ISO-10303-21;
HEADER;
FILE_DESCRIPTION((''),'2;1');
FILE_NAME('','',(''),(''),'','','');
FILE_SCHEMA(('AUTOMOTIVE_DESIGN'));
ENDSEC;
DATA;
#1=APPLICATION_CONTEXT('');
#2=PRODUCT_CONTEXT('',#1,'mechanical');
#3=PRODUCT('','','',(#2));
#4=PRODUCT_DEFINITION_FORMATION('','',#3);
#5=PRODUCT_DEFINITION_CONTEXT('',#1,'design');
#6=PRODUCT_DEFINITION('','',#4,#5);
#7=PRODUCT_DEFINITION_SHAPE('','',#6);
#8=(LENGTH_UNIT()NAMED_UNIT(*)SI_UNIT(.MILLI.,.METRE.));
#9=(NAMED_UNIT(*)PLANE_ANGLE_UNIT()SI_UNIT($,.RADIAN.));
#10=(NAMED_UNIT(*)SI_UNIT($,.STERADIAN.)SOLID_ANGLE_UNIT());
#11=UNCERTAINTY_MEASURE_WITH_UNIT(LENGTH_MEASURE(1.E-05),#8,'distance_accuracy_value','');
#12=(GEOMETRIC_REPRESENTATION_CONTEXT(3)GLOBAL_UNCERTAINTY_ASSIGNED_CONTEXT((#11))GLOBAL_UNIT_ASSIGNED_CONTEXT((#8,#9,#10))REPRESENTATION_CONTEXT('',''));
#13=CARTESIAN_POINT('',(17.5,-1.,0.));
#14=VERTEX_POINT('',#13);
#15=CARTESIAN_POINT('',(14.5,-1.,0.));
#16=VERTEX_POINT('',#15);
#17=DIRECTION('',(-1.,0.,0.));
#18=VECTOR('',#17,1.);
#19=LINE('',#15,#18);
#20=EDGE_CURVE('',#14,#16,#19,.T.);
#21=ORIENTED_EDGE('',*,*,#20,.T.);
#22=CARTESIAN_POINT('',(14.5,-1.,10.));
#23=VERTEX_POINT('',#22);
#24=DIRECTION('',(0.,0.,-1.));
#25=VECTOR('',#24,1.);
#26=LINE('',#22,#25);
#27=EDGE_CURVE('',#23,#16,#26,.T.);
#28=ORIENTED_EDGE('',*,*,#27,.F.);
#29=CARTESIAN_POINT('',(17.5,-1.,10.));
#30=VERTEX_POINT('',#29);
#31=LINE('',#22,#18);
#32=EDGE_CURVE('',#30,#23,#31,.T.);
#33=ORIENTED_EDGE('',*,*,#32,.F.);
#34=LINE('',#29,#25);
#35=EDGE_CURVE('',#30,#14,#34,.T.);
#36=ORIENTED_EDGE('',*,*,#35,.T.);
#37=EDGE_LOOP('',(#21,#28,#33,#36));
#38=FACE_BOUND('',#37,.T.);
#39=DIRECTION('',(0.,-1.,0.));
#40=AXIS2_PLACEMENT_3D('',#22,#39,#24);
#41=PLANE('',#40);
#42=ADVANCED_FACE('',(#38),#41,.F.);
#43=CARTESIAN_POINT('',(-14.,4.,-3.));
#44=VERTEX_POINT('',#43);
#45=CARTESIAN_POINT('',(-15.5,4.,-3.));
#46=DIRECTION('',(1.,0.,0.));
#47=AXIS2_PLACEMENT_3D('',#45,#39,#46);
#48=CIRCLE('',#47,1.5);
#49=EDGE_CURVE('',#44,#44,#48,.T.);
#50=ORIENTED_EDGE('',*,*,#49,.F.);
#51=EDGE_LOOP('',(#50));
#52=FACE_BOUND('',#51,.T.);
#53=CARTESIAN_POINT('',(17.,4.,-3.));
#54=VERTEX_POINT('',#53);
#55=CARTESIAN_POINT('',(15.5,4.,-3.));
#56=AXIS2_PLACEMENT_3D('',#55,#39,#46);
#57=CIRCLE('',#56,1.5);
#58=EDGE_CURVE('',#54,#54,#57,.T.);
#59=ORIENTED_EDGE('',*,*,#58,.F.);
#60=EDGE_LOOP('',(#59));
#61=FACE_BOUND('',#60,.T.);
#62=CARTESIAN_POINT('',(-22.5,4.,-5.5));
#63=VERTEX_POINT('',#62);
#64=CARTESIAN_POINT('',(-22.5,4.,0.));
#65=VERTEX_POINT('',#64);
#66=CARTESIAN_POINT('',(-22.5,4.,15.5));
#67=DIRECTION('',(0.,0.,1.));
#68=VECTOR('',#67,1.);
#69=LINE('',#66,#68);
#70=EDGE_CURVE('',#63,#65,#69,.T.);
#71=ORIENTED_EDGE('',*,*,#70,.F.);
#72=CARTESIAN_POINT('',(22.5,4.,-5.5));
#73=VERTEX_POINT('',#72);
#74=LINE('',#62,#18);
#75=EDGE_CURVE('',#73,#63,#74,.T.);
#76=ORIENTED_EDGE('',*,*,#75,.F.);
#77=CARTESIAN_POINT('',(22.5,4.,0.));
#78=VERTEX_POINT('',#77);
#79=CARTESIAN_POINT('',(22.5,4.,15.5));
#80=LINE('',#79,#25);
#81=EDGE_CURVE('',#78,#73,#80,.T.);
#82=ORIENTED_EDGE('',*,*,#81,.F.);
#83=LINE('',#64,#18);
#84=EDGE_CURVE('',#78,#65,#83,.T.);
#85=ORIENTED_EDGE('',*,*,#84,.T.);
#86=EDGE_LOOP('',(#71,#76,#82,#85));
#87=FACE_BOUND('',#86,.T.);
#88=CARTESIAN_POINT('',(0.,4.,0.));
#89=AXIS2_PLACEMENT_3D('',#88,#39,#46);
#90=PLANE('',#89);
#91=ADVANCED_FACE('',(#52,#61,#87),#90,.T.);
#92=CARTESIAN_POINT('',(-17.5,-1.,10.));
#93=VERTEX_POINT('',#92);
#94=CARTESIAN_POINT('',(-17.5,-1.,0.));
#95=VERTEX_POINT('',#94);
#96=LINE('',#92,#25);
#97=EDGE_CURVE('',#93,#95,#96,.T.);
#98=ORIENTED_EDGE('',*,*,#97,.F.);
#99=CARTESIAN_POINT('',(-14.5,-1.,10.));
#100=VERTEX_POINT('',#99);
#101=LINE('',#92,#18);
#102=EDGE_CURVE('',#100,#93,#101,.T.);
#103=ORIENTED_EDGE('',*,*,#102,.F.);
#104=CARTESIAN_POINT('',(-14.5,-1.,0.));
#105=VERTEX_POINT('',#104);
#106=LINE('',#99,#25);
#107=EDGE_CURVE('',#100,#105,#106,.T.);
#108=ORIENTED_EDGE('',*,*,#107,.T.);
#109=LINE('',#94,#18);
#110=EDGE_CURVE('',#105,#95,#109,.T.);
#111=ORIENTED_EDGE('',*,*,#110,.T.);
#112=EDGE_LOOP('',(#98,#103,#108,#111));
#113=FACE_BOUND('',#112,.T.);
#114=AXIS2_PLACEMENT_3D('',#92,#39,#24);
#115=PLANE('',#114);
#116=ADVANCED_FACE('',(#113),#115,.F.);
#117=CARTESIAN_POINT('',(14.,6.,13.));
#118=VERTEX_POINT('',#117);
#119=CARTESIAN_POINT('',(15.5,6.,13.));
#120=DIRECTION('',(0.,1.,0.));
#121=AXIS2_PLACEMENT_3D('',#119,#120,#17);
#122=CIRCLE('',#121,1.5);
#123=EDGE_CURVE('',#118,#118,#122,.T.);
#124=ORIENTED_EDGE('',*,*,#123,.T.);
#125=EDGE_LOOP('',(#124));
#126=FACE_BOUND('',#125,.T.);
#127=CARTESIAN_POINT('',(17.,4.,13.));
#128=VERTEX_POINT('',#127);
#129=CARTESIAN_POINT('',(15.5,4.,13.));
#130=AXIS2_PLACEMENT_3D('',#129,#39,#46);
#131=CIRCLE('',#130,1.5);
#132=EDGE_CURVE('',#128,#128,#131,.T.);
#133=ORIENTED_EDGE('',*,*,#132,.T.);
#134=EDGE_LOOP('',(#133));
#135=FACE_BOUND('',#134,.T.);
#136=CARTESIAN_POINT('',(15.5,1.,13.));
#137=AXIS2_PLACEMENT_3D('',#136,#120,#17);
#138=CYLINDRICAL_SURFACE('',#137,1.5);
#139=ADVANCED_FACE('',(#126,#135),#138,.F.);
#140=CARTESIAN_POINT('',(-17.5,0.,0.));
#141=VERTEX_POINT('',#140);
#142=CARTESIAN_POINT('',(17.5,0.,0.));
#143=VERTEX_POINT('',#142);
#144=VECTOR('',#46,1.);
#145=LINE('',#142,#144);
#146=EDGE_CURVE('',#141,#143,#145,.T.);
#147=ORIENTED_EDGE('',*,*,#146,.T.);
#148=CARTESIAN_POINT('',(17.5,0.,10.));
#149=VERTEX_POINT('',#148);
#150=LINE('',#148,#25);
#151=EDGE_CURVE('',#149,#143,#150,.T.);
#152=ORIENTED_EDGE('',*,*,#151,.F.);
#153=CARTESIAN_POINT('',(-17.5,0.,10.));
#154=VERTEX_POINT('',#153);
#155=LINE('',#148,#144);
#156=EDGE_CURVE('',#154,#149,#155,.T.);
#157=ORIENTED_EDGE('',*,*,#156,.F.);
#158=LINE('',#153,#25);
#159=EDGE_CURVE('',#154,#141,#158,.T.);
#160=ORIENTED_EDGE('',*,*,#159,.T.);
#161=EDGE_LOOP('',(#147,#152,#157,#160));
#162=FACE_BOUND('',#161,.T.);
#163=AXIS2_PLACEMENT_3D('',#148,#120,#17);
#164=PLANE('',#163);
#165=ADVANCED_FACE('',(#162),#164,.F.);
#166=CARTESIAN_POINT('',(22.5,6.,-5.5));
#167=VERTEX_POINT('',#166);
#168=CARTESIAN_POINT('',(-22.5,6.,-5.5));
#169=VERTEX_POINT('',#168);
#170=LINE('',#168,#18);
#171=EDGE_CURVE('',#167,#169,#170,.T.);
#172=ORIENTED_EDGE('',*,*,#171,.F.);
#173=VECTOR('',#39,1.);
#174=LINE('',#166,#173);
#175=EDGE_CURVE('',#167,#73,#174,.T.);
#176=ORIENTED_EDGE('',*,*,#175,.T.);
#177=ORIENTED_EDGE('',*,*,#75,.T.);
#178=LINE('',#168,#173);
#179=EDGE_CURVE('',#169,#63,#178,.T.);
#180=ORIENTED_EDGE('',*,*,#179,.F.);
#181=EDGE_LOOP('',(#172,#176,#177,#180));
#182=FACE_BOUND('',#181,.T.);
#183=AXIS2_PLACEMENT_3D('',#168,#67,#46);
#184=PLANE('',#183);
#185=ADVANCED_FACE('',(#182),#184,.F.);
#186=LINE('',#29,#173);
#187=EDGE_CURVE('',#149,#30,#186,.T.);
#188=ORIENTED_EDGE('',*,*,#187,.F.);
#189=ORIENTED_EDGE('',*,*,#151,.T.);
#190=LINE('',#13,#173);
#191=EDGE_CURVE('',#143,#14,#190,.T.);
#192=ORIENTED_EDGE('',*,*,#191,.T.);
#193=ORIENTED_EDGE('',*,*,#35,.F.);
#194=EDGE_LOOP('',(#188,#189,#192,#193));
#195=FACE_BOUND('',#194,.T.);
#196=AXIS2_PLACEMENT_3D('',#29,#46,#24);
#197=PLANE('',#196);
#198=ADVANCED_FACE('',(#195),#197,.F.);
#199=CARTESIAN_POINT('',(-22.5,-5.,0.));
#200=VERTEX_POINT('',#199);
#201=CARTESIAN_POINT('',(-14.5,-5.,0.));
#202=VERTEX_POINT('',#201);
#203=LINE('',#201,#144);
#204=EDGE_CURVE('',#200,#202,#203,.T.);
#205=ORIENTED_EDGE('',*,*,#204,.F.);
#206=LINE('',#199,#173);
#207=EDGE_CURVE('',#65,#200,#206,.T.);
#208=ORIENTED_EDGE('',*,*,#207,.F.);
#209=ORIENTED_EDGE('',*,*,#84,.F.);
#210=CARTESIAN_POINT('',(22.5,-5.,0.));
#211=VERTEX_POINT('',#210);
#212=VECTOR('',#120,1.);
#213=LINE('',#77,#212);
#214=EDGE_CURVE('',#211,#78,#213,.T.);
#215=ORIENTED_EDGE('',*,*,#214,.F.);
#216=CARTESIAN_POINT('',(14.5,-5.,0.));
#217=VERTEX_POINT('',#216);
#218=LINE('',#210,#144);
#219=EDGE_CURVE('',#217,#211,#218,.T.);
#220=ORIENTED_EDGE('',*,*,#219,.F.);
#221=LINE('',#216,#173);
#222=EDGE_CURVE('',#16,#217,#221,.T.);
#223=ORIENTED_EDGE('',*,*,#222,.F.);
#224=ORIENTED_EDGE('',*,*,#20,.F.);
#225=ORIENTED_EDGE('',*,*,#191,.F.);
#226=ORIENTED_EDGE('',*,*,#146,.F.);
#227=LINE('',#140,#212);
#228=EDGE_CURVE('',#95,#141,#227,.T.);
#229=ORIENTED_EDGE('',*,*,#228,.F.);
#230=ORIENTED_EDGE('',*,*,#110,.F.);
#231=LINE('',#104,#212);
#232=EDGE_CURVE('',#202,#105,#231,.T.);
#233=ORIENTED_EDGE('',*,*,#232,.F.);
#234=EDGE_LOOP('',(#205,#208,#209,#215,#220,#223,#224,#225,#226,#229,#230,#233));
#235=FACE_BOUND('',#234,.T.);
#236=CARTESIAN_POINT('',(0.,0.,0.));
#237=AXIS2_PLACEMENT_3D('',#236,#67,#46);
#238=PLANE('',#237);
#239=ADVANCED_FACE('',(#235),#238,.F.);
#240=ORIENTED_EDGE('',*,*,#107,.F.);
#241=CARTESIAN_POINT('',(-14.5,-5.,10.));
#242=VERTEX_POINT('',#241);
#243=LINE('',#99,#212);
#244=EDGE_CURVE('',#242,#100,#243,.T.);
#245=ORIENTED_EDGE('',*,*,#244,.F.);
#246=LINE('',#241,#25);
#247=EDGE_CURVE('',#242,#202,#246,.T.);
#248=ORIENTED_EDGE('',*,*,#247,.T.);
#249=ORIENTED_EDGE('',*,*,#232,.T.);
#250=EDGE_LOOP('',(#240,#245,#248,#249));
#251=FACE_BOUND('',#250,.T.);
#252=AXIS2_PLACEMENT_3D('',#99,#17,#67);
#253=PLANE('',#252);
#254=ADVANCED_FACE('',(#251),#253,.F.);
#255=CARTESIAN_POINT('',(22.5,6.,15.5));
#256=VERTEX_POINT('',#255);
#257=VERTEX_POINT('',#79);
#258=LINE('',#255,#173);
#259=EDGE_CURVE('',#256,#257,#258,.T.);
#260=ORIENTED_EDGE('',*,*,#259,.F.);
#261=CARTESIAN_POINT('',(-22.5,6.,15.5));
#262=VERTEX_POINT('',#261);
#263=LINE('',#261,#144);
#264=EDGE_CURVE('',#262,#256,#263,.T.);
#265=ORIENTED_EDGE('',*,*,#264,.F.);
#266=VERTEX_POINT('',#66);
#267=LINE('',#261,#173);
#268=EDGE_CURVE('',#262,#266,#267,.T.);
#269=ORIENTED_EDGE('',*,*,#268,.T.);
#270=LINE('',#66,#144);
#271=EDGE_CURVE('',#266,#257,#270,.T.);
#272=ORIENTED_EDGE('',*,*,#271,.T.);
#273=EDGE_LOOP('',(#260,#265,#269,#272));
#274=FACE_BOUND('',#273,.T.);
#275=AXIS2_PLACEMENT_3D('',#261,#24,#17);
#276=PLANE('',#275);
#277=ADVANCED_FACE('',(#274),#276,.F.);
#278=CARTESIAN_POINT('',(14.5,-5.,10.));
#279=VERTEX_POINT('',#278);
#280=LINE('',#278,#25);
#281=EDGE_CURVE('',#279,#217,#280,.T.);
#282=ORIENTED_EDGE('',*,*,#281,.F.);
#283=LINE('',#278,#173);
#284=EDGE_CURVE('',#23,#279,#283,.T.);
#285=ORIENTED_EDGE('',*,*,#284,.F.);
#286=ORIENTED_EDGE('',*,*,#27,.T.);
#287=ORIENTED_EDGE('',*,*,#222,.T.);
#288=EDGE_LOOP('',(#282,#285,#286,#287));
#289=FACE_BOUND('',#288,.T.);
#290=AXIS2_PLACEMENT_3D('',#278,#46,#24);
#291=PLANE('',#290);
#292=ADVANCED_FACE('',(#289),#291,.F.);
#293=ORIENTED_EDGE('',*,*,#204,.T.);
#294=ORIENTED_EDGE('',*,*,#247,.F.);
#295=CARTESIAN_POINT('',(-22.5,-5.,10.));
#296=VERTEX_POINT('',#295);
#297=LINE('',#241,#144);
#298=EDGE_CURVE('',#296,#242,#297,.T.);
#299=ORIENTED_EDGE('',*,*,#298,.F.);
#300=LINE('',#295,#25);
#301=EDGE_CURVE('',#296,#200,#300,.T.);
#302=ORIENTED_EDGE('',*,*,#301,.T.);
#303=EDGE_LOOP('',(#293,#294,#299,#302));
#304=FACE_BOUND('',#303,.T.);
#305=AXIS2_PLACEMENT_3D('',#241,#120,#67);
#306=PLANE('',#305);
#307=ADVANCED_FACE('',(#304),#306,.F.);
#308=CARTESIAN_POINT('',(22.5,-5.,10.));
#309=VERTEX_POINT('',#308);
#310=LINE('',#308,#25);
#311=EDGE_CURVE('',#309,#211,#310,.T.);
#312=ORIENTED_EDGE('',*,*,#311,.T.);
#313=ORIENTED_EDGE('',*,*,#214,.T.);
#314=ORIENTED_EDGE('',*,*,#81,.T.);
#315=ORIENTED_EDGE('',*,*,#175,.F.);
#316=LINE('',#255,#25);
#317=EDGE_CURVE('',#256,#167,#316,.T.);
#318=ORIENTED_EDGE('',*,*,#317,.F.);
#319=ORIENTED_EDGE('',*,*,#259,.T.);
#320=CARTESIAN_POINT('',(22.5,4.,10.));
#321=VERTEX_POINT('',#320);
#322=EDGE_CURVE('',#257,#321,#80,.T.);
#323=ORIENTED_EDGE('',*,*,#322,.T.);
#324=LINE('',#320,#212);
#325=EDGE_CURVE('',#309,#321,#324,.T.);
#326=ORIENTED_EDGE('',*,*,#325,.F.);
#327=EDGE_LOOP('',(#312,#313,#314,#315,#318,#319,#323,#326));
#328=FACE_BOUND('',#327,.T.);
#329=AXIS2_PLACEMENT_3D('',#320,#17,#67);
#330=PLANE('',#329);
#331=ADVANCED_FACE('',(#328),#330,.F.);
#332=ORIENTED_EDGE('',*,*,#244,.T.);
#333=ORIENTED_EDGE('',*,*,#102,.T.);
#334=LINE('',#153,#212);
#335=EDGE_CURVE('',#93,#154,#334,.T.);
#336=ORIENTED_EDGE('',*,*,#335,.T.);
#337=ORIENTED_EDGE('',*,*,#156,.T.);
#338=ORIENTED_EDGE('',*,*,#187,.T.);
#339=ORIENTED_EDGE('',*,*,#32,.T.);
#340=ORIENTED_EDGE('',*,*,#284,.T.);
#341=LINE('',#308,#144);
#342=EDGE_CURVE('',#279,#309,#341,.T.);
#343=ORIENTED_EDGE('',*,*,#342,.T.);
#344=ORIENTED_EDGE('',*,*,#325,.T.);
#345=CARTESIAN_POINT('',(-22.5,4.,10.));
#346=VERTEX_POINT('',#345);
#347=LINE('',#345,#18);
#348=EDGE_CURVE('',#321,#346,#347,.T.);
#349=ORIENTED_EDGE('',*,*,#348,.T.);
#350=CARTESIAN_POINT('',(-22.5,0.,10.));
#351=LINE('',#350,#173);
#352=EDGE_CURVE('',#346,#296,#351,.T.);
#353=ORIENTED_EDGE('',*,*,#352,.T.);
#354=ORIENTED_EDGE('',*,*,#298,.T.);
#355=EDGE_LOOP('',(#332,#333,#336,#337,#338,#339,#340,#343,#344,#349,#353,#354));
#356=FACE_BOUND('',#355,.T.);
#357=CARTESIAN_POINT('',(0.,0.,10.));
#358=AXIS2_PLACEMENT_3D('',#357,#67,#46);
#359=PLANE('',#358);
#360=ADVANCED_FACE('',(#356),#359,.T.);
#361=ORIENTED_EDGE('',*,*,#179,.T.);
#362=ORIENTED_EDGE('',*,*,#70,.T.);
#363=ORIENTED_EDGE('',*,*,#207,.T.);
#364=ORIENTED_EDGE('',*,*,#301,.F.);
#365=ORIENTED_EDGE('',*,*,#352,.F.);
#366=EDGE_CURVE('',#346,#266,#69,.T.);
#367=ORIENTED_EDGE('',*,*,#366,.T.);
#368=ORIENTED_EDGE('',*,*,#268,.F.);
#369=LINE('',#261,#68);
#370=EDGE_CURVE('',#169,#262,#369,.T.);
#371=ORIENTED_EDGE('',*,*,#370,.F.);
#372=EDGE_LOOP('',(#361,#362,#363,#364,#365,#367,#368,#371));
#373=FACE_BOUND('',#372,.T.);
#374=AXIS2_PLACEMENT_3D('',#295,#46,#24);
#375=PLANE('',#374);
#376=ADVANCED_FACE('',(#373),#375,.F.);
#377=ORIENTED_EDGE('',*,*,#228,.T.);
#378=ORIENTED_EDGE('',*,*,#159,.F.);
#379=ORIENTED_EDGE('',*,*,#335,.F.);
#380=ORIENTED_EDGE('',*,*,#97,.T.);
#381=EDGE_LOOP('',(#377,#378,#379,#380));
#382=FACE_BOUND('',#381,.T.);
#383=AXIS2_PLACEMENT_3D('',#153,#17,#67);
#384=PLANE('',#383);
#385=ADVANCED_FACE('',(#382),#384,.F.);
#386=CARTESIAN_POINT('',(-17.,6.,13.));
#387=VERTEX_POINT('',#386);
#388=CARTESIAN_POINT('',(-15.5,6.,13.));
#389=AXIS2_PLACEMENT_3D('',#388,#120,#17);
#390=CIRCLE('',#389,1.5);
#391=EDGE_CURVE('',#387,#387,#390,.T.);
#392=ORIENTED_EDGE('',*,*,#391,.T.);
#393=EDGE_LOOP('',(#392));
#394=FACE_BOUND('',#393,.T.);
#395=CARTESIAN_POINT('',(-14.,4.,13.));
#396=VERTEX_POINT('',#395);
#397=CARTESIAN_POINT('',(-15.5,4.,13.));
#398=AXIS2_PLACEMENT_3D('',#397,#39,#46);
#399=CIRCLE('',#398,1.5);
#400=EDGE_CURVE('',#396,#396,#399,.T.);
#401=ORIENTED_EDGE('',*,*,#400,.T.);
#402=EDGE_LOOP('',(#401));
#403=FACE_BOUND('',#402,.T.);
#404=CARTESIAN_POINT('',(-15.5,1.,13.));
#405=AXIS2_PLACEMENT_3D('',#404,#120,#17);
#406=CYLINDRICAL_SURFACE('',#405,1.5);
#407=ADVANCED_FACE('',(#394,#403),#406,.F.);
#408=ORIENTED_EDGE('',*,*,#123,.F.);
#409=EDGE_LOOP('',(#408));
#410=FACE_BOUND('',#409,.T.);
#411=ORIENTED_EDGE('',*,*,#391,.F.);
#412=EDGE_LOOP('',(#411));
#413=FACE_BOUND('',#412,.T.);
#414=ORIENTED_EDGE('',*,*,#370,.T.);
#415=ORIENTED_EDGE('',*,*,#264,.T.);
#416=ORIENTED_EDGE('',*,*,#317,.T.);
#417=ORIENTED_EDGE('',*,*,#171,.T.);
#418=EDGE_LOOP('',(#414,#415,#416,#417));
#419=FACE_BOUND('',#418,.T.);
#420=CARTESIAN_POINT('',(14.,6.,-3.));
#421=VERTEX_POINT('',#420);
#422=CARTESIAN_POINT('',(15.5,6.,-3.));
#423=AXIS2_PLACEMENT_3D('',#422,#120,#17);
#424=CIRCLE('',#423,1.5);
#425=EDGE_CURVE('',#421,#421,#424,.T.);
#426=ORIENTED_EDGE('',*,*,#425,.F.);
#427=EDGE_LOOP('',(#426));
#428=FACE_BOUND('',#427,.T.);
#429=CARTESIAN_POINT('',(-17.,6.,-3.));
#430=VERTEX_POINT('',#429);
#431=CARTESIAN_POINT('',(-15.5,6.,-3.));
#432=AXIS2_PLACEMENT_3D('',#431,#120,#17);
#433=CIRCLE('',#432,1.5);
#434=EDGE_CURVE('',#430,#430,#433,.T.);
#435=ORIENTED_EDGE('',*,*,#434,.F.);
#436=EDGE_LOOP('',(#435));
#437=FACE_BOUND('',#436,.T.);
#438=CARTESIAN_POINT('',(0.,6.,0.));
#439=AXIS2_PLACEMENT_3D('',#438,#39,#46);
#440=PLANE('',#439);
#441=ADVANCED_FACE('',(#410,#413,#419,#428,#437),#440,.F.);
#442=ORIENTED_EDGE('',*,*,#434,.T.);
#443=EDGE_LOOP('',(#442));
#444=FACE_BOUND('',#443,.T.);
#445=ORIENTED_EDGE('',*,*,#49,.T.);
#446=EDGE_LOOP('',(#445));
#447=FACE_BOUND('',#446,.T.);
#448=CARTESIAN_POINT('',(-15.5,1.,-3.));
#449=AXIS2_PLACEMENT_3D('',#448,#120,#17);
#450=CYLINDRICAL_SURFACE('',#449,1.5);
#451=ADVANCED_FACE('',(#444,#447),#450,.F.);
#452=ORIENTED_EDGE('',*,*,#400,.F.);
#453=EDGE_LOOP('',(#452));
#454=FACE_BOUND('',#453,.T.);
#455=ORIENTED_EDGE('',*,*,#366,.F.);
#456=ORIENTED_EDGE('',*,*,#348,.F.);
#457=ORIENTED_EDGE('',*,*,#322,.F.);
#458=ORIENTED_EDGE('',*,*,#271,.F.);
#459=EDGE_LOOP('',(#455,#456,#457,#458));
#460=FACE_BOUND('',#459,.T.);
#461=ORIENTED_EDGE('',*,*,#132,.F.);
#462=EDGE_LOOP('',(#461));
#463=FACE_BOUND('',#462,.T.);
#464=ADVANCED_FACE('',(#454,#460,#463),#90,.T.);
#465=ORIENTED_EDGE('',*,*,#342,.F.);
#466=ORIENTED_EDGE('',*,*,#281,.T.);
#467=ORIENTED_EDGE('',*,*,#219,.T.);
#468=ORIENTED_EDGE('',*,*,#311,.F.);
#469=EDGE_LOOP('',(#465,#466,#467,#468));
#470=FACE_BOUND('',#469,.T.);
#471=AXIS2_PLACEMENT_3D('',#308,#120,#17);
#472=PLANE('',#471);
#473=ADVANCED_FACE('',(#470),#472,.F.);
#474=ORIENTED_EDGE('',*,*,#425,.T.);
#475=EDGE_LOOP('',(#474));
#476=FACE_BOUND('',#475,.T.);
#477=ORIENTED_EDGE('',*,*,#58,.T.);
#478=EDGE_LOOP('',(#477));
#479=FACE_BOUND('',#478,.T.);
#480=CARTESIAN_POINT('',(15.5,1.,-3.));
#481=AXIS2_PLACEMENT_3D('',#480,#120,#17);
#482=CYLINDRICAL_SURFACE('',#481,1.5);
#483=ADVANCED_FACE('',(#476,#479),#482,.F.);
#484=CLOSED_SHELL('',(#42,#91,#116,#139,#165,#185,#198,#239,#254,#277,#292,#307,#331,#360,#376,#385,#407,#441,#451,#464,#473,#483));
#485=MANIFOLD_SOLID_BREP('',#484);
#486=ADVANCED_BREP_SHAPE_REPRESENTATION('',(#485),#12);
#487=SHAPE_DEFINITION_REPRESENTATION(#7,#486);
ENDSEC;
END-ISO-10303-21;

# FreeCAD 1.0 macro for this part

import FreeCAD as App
import Part
import Sketcher
from FreeCAD import Vector


def add_polygon(sketch, points):
    """Adds a closed chain of lines whose ends are joined by coincident constraints."""
    first, n = sketch.GeometryCount, len(points)
    for a, b in zip(points, points[1:] + points[:1]):
        sketch.addGeometry(Part.LineSegment(App.Vector(*a, 0), App.Vector(*b, 0)), False)
    for i in range(n):
        sketch.addConstraint(Sketcher.Constraint("Coincident", first + i, 2, first + (i + 1) % n, 1))

doc = App.newDocument("Part")
body = doc.addObject("PartDesign::Body", "Body")

# Sketch on XY plane
sketch1 = body.newObject("Sketcher::SketchObject", "Sketch")
sketch1.AttachmentSupport = (doc.getObject("XY_Plane"), [""])
sketch1.MapMode = "FlatFace"
add_polygon(sketch1, [(-17.5, -1), (-17.5, 0), (17.5, 0), (17.5, -1), (14.5, -1), (14.5, -5), (22.5, -5), (22.5, 4), (-22.5, 4), (-22.5, -5), (-14.5, -5), (-14.5, -1)])  # lines 0-11
sketch1.addConstraint([
    Sketcher.Constraint("Vertical", 0),
    Sketcher.Constraint("Horizontal", 1),
    Sketcher.Constraint("Vertical", 2),
    Sketcher.Constraint("Horizontal", 3),
    Sketcher.Constraint("Vertical", 4),
    Sketcher.Constraint("Horizontal", 5),
    Sketcher.Constraint("Vertical", 6),
    Sketcher.Constraint("Horizontal", 7),
    Sketcher.Constraint("Vertical", 8),
    Sketcher.Constraint("Horizontal", 9),
    Sketcher.Constraint("Vertical", 10),
    Sketcher.Constraint("Horizontal", 11),
    Sketcher.Constraint("Symmetric", 0, 2, 1, 2, -1, 1),
    Sketcher.Constraint("Symmetric", 5, 2, 8, 2, -2),
    Sketcher.Constraint("Symmetric", 3, 2, 10, 2, -2),
    Sketcher.Constraint("DistanceX", 1, 1, 1, 2, 35.0),
    Sketcher.Constraint("DistanceX", 3, 2, 3, 1, 3.0),
    Sketcher.Constraint("DistanceX", 5, 1, 5, 2, 8.0),
    Sketcher.Constraint("DistanceY", 0, 1, 0, 2, 1.0),
    Sketcher.Constraint("DistanceY", 4, 2, 4, 1, 4.0),
    Sketcher.Constraint("DistanceY", 6, 1, 6, 2, 9.0),
])
pad1 = body.newObject("PartDesign::Pad", "Pad")
pad1.Profile = sketch1
pad1.Length = 10

# Sketch on XZ plane
sketch2 = body.newObject("Sketcher::SketchObject", "Sketch001")
sketch2.AttachmentSupport = (doc.getObject("XZ_Plane"), [""])
sketch2.MapMode = "FlatFace"
sketch2.AttachmentOffset = App.Placement(Vector(0, 0, -4), App.Rotation())
add_polygon(sketch2, [(-22.5, -5.5), (-22.5, 15.5), (22.5, 15.5), (22.5, -5.5)])  # lines 0-3
sketch2.addConstraint([
    Sketcher.Constraint("Vertical", 0),
    Sketcher.Constraint("Horizontal", 1),
    Sketcher.Constraint("Vertical", 2),
    Sketcher.Constraint("Horizontal", 3),
    Sketcher.Constraint("DistanceX", 1, 1, 1, 2, 45.0),
    Sketcher.Constraint("DistanceY", 0, 1, 0, 2, 21.0),
    Sketcher.Constraint("DistanceX", 0, 2, -1, 1, 22.5),
    Sketcher.Constraint("DistanceY", -1, 1, 0, 2, 15.5),
])
pad2 = body.newObject("PartDesign::Pad", "Pad001")
pad2.Profile = sketch2
pad2.Length = 2
pad2.Reversed = True

# Sketch on XZ plane
sketch3 = body.newObject("Sketcher::SketchObject", "Sketch002")
sketch3.AttachmentSupport = (doc.getObject("XZ_Plane"), [""])
sketch3.MapMode = "FlatFace"
sketch3.AttachmentOffset = App.Placement(Vector(0, 0, -6), App.Rotation())
sketch3.addGeometry([
    Part.Circle(Vector(-15.5, 13, 0), Vector(0, 0, 1), 1.5),
    Part.Circle(Vector(-15.5, -3, 0), Vector(0, 0, 1), 1.5),
    Part.Circle(Vector(15.5, -3, 0), Vector(0, 0, 1), 1.5),
    Part.Circle(Vector(15.5, 13, 0), Vector(0, 0, 1), 1.5),
], False)
sketch3.addConstraint([
    Sketcher.Constraint("Equal", 0, 1),
    Sketcher.Constraint("Equal", 1, 2),
    Sketcher.Constraint("Equal", 2, 3),
    Sketcher.Constraint("Symmetric", 1, 3, 2, 3, -2),
    Sketcher.Constraint("Symmetric", 0, 3, 3, 3, -2),
    Sketcher.Constraint("Vertical", 0, 3, 1, 3),
    Sketcher.Constraint("Diameter", 0, 3.0),
    Sketcher.Constraint("DistanceY", -1, 1, 0, 3, 13.0),
    Sketcher.Constraint("DistanceY", 1, 3, -1, 1, 3.0),
    Sketcher.Constraint("DistanceX", 1, 3, 2, 3, 31.0),
])
pocket1 = body.newObject("PartDesign::Pocket", "Pocket")
pocket1.Profile = sketch3
pocket1.Length = 5
pocket1.Reversed = True

doc.recompute()
